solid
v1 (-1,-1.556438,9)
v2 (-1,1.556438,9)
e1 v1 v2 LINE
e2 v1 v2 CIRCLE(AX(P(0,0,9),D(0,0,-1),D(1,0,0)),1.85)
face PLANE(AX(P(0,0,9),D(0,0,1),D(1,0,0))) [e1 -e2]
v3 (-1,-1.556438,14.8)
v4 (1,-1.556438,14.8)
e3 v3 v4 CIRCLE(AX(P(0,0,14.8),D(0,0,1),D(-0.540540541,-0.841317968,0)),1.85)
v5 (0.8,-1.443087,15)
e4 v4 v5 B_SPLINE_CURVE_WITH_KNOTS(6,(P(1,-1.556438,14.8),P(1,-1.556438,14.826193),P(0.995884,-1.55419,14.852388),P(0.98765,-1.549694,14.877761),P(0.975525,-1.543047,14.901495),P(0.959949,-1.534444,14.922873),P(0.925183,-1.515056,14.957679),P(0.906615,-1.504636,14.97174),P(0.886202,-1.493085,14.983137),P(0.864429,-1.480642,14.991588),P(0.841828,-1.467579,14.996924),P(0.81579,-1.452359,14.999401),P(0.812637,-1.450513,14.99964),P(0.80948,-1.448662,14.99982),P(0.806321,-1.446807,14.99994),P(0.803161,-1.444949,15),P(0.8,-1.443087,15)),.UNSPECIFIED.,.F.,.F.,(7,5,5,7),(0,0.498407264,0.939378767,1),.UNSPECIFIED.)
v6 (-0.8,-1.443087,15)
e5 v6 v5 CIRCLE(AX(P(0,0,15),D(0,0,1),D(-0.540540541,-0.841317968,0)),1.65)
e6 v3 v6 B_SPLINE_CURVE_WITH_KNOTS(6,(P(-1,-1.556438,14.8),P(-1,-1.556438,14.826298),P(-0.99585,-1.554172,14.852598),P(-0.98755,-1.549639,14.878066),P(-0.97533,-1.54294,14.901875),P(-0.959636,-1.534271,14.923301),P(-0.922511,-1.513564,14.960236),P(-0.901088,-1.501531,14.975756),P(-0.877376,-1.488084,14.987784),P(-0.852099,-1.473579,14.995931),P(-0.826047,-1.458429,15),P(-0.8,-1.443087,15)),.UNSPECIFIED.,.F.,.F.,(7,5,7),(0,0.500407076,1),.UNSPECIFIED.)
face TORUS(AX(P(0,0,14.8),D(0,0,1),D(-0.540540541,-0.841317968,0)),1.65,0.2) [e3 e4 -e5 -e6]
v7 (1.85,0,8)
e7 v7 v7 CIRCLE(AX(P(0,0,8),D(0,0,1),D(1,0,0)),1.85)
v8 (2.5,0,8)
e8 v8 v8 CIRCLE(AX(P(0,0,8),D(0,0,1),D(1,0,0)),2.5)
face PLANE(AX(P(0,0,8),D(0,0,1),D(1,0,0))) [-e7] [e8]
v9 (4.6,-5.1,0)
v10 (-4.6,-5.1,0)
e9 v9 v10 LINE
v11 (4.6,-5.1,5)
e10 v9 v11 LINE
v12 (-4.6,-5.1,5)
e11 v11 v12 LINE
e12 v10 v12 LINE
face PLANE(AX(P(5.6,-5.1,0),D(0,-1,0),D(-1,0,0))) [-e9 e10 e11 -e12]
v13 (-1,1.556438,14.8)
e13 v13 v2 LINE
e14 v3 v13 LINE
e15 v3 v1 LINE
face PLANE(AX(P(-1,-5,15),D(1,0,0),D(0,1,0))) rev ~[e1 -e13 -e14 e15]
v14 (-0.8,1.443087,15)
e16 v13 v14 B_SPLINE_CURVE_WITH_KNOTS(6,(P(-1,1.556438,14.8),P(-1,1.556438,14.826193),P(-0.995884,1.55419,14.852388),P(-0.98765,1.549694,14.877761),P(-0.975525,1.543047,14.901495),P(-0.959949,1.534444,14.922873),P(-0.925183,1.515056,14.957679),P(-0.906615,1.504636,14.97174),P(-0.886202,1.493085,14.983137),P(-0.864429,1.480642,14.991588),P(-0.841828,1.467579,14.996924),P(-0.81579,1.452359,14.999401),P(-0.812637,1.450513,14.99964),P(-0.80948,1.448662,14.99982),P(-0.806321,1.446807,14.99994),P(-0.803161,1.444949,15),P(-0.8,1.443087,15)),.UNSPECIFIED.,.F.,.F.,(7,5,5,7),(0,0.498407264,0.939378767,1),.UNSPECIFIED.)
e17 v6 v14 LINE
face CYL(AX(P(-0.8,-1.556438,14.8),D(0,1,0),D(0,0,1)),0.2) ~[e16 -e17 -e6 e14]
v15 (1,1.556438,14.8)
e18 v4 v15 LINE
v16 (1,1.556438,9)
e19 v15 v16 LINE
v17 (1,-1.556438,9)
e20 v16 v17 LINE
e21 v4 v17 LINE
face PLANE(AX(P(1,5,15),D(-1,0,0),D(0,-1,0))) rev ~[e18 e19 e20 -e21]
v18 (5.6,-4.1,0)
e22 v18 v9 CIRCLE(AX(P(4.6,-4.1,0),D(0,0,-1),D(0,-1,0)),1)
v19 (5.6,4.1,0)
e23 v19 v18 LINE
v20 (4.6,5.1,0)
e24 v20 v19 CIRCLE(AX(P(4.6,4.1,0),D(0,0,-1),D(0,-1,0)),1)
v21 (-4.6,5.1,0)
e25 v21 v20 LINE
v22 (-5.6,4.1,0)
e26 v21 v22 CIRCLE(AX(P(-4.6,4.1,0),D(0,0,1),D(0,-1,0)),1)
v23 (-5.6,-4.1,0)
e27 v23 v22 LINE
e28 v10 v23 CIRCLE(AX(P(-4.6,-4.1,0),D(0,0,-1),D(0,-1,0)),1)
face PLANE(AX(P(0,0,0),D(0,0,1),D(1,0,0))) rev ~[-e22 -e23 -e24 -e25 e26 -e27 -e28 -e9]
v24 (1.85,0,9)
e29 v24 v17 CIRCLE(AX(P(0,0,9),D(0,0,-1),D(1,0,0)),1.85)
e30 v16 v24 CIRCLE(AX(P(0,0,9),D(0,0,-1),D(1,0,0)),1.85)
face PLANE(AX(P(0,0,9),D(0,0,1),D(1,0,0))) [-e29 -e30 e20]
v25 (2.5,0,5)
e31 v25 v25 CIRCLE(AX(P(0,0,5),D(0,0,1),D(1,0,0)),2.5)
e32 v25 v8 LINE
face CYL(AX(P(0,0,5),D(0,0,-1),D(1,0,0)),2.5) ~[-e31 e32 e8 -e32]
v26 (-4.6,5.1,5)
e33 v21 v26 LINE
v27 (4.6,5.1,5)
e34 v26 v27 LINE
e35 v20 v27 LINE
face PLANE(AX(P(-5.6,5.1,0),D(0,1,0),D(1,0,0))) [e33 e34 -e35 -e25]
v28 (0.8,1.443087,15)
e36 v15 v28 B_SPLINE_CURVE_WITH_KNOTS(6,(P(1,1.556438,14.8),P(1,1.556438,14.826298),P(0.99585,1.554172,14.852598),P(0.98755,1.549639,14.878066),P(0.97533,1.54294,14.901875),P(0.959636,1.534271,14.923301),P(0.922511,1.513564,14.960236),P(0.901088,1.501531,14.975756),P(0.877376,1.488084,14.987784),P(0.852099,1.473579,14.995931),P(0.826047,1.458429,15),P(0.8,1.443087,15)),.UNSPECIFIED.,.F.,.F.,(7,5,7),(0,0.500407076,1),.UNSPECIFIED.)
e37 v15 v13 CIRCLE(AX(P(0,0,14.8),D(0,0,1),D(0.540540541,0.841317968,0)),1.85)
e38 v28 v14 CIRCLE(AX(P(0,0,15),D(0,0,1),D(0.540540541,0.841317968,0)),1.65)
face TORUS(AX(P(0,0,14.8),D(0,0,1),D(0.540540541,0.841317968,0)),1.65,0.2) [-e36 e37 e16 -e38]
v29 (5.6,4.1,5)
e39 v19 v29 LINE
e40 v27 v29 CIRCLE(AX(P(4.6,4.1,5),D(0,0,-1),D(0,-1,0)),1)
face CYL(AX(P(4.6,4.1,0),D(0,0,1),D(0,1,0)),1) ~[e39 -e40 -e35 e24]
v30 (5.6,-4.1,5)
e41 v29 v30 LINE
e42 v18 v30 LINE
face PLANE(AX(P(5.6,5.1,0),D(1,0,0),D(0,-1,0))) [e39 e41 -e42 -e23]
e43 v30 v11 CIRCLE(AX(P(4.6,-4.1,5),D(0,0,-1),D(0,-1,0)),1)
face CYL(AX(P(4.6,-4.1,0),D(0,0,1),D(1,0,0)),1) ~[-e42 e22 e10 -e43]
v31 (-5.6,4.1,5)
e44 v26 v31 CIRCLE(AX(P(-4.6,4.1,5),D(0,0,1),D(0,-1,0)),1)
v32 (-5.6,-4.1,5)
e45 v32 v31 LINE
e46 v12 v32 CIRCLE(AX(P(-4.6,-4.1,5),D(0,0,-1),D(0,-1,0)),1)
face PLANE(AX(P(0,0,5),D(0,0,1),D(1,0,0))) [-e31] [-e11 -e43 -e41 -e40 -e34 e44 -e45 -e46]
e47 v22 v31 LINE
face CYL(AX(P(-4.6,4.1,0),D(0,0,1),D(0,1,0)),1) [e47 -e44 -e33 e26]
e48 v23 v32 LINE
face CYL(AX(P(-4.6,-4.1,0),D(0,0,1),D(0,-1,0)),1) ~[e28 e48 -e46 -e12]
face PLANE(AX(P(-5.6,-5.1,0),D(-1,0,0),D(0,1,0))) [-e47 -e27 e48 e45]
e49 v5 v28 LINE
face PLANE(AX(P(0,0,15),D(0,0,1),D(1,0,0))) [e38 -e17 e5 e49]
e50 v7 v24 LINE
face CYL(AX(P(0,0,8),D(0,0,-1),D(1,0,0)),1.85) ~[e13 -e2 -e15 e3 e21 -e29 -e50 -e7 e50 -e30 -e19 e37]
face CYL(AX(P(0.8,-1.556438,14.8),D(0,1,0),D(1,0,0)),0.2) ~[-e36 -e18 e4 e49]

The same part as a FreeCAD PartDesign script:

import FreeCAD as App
import Part
import Sketcher
from FreeCAD import Vector
Q = App.Units.Quantity


def edges_at(feature, points):
    """Names of the edges that pass closest to the given points."""
    edges = feature.Shape.Edges
    near = lambda p: min(range(len(edges)), key=lambda i: edges[i].distToShape(Part.Vertex(*p))[0])
    return sorted({f"Edge{near(p) + 1}" for p in points})

doc = App.newDocument("Part")
params = doc.addObject("Spreadsheet::Sheet", "Params")
for row, (alias, value) in enumerate([
    ("sketch1_width", "11.2 mm"),
    ("sketch1_height", "10.2 mm"),
    ("pad1_length", "5 mm"),
    ("fillet_radius", "1 mm"),
    ("sketch2_diameter", "5 mm"),
    ("pad2_length", "3 mm"),
    ("sketch3_diameter", "3.7 mm"),
    ("pad3_length", "7 mm"),
    ("sketch4_height", "10 mm"),
    ("pocket1_length", "6 mm"),
    ("fillet2_radius", "0.2 mm"),
], start=1):
    params.set(f"A{row}", alias)
    params.set(f"B{row}", "=" + value)
    params.setAlias(f"B{row}", alias)

body = doc.addObject("PartDesign::Body", "Body")

sketch1 = body.newObject("Sketcher::SketchObject", "Sketch")
sketch1.AttachmentSupport = (doc.getObject("XY_Plane"), [""])
sketch1.MapMode = "FlatFace"
sketch1.addGeometry(Part.LineSegment(Vector(5.6, 5.1, 0), Vector(-5.6, 5.1, 0)), False)
sketch1.addGeometry(Part.LineSegment(Vector(-5.6, 5.1, 0), Vector(-5.6, -5.1, 0)), False)
sketch1.addGeometry(Part.LineSegment(Vector(-5.6, -5.1, 0), Vector(5.6, -5.1, 0)), False)
sketch1.addGeometry(Part.LineSegment(Vector(5.6, -5.1, 0), Vector(5.6, 5.1, 0)), False)
sketch1.addConstraint(Sketcher.Constraint("Coincident", 0, 2, 1, 1))
sketch1.addConstraint(Sketcher.Constraint("Coincident", 1, 2, 2, 1))
sketch1.addConstraint(Sketcher.Constraint("Coincident", 2, 2, 3, 1))
sketch1.addConstraint(Sketcher.Constraint("Coincident", 3, 2, 0, 1))
sketch1.addConstraint(Sketcher.Constraint("Horizontal", 0))
sketch1.addConstraint(Sketcher.Constraint("Vertical", 1))
sketch1.addConstraint(Sketcher.Constraint("Horizontal", 2))
sketch1.addConstraint(Sketcher.Constraint("Vertical", 3))
sketch1.addConstraint(Sketcher.Constraint("Symmetric", 0, 2, 2, 2, -1, 1))
sketch1.addConstraint(Sketcher.Constraint("DistanceX", 0, 2, 0, 1, Q("11.2 mm")))
sketch1.addConstraint(Sketcher.Constraint("DistanceY", 1, 2, 1, 1, Q("10.2 mm")))
sketch1.setExpression("Constraints[9]", "Params.sketch1_width")
sketch1.setExpression("Constraints[10]", "Params.sketch1_height")
pad1 = body.newObject("PartDesign::Pad", "Pad")
pad1.Profile = sketch1
pad1.setExpression("Length", "Params.pad1_length")
doc.recompute()

fillet = body.newObject("PartDesign::Fillet", "Fillet")
fillet.Base = (pad1, edges_at(pad1, [
    (-5.6, 5.1, 2.5),
    (5.6, 5.1, 2.5),
    (5.6, -5.1, 2.5),
    (-5.6, -5.1, 2.5),
]))
fillet.setExpression("Radius", "Params.fillet_radius")

sketch2 = body.newObject("Sketcher::SketchObject", "Sketch001")
sketch2.AttachmentSupport = (doc.getObject("XY_Plane"), [""])
sketch2.MapMode = "FlatFace"
sketch2.AttachmentOffset = App.Placement(Vector(0, 0, 5), App.Rotation())
sketch2.addGeometry(Part.Circle(Vector(0, 0, 0), Vector(0, 0, 1), 2.5), False)
sketch2.addConstraint(Sketcher.Constraint("Coincident", 0, 3, -1, 1))
sketch2.addConstraint(Sketcher.Constraint("Diameter", 0, Q("5 mm")))
sketch2.setExpression("Constraints[1]", "Params.sketch2_diameter")
pad2 = body.newObject("PartDesign::Pad", "Pad001")
pad2.Profile = sketch2
pad2.setExpression("Length", "Params.pad2_length")

sketch3 = body.newObject("Sketcher::SketchObject", "Sketch002")
sketch3.AttachmentSupport = (doc.getObject("XY_Plane"), [""])
sketch3.MapMode = "FlatFace"
sketch3.AttachmentOffset = App.Placement(Vector(0, 0, 8), App.Rotation())
sketch3.addGeometry(Part.Circle(Vector(0, 0, 0), Vector(0, 0, 1), 1.85), False)
sketch3.addConstraint(Sketcher.Constraint("Coincident", 0, 3, -1, 1))
sketch3.addConstraint(Sketcher.Constraint("Diameter", 0, Q("3.7 mm")))
sketch3.setExpression("Constraints[1]", "Params.sketch3_diameter")
pad3 = body.newObject("PartDesign::Pad", "Pad002")
pad3.Profile = sketch3
pad3.setExpression("Length", "Params.pad3_length")

sketch4 = body.newObject("Sketcher::SketchObject", "Sketch003")
sketch4.AttachmentSupport = (doc.getObject("XY_Plane"), [""])
sketch4.MapMode = "FlatFace"
sketch4.AttachmentOffset = App.Placement(Vector(0, 0, 15), App.Rotation())
sketch4.addGeometry(Part.LineSegment(Vector(1, 8.8009, 0), Vector(1, -5, 0)), False)
sketch4.addGeometry(Part.LineSegment(Vector(1, -5, 0), Vector(12.6944, -5, 0)), False)
sketch4.addGeometry(Part.LineSegment(Vector(12.6944, -5, 0), Vector(12.6944, 8.8009, 0)), False)
sketch4.addGeometry(Part.LineSegment(Vector(12.6944, 8.8009, 0), Vector(1, 8.8009, 0)), False)
sketch4.addGeometry(Part.LineSegment(Vector(-9.7743, -5, 0), Vector(-1, -5, 0)), False)
sketch4.addGeometry(Part.LineSegment(Vector(-1, -5, 0), Vector(-1, 5, 0)), False)
sketch4.addGeometry(Part.LineSegment(Vector(-1, 5, 0), Vector(-9.7743, 5, 0)), False)
sketch4.addGeometry(Part.LineSegment(Vector(-9.7743, 5, 0), Vector(-9.7743, -5, 0)), False)
sketch4.addConstraint(Sketcher.Constraint("Coincident", 0, 2, 1, 1))
sketch4.addConstraint(Sketcher.Constraint("Coincident", 1, 2, 2, 1))
sketch4.addConstraint(Sketcher.Constraint("Coincident", 2, 2, 3, 1))
sketch4.addConstraint(Sketcher.Constraint("Coincident", 3, 2, 0, 1))
sketch4.addConstraint(Sketcher.Constraint("Coincident", 4, 2, 5, 1))
sketch4.addConstraint(Sketcher.Constraint("Coincident", 5, 2, 6, 1))
sketch4.addConstraint(Sketcher.Constraint("Coincident", 6, 2, 7, 1))
sketch4.addConstraint(Sketcher.Constraint("Coincident", 7, 2, 4, 1))
sketch4.addConstraint(Sketcher.Constraint("Vertical", 0))
sketch4.addConstraint(Sketcher.Constraint("Horizontal", 1))
sketch4.addConstraint(Sketcher.Constraint("Vertical", 2))
sketch4.addConstraint(Sketcher.Constraint("Horizontal", 3))
sketch4.addConstraint(Sketcher.Constraint("Horizontal", 4))
sketch4.addConstraint(Sketcher.Constraint("Vertical", 5))
sketch4.addConstraint(Sketcher.Constraint("Horizontal", 6))
sketch4.addConstraint(Sketcher.Constraint("Vertical", 7))
sketch4.addConstraint(Sketcher.Constraint("Symmetric", 0, 2, 5, 2, -1, 1))
sketch4.addConstraint(Sketcher.Constraint("Horizontal", 1, 2, 4, 2))
sketch4.addConstraint(Sketcher.Constraint("DistanceY", 5, 1, 5, 2, Q("10 mm")))
sketch4.addConstraint(Sketcher.Constraint("DistanceX", 4, 2, 0, 2, Q("2 mm")))
sketch4.addConstraint(Sketcher.Constraint("DistanceY", 0, 2, 0, 1, Q("13.801 mm")))
sketch4.addConstraint(Sketcher.Constraint("DistanceX", 1, 1, 1, 2, Q("11.6944 mm")))
sketch4.addConstraint(Sketcher.Constraint("DistanceX", 4, 1, 4, 2, Q("8.7743 mm")))
sketch4.setExpression("Constraints[18]", "Params.sketch4_height")
pocket1 = body.newObject("PartDesign::Pocket", "Pocket")
pocket1.Profile = sketch4
pocket1.setExpression("Length", "Params.pocket1_length")
doc.recompute()

fillet2 = body.newObject("PartDesign::Fillet", "Fillet001")
fillet2.Base = (pocket1, edges_at(pocket1, [
    (0, -1.85, 15),
    (0, 1.85, 15),
    (1, 0, 15),
    (-1, 0, 15),
]))
fillet2.setExpression("Radius", "Params.fillet2_radius")

doc.recompute()
